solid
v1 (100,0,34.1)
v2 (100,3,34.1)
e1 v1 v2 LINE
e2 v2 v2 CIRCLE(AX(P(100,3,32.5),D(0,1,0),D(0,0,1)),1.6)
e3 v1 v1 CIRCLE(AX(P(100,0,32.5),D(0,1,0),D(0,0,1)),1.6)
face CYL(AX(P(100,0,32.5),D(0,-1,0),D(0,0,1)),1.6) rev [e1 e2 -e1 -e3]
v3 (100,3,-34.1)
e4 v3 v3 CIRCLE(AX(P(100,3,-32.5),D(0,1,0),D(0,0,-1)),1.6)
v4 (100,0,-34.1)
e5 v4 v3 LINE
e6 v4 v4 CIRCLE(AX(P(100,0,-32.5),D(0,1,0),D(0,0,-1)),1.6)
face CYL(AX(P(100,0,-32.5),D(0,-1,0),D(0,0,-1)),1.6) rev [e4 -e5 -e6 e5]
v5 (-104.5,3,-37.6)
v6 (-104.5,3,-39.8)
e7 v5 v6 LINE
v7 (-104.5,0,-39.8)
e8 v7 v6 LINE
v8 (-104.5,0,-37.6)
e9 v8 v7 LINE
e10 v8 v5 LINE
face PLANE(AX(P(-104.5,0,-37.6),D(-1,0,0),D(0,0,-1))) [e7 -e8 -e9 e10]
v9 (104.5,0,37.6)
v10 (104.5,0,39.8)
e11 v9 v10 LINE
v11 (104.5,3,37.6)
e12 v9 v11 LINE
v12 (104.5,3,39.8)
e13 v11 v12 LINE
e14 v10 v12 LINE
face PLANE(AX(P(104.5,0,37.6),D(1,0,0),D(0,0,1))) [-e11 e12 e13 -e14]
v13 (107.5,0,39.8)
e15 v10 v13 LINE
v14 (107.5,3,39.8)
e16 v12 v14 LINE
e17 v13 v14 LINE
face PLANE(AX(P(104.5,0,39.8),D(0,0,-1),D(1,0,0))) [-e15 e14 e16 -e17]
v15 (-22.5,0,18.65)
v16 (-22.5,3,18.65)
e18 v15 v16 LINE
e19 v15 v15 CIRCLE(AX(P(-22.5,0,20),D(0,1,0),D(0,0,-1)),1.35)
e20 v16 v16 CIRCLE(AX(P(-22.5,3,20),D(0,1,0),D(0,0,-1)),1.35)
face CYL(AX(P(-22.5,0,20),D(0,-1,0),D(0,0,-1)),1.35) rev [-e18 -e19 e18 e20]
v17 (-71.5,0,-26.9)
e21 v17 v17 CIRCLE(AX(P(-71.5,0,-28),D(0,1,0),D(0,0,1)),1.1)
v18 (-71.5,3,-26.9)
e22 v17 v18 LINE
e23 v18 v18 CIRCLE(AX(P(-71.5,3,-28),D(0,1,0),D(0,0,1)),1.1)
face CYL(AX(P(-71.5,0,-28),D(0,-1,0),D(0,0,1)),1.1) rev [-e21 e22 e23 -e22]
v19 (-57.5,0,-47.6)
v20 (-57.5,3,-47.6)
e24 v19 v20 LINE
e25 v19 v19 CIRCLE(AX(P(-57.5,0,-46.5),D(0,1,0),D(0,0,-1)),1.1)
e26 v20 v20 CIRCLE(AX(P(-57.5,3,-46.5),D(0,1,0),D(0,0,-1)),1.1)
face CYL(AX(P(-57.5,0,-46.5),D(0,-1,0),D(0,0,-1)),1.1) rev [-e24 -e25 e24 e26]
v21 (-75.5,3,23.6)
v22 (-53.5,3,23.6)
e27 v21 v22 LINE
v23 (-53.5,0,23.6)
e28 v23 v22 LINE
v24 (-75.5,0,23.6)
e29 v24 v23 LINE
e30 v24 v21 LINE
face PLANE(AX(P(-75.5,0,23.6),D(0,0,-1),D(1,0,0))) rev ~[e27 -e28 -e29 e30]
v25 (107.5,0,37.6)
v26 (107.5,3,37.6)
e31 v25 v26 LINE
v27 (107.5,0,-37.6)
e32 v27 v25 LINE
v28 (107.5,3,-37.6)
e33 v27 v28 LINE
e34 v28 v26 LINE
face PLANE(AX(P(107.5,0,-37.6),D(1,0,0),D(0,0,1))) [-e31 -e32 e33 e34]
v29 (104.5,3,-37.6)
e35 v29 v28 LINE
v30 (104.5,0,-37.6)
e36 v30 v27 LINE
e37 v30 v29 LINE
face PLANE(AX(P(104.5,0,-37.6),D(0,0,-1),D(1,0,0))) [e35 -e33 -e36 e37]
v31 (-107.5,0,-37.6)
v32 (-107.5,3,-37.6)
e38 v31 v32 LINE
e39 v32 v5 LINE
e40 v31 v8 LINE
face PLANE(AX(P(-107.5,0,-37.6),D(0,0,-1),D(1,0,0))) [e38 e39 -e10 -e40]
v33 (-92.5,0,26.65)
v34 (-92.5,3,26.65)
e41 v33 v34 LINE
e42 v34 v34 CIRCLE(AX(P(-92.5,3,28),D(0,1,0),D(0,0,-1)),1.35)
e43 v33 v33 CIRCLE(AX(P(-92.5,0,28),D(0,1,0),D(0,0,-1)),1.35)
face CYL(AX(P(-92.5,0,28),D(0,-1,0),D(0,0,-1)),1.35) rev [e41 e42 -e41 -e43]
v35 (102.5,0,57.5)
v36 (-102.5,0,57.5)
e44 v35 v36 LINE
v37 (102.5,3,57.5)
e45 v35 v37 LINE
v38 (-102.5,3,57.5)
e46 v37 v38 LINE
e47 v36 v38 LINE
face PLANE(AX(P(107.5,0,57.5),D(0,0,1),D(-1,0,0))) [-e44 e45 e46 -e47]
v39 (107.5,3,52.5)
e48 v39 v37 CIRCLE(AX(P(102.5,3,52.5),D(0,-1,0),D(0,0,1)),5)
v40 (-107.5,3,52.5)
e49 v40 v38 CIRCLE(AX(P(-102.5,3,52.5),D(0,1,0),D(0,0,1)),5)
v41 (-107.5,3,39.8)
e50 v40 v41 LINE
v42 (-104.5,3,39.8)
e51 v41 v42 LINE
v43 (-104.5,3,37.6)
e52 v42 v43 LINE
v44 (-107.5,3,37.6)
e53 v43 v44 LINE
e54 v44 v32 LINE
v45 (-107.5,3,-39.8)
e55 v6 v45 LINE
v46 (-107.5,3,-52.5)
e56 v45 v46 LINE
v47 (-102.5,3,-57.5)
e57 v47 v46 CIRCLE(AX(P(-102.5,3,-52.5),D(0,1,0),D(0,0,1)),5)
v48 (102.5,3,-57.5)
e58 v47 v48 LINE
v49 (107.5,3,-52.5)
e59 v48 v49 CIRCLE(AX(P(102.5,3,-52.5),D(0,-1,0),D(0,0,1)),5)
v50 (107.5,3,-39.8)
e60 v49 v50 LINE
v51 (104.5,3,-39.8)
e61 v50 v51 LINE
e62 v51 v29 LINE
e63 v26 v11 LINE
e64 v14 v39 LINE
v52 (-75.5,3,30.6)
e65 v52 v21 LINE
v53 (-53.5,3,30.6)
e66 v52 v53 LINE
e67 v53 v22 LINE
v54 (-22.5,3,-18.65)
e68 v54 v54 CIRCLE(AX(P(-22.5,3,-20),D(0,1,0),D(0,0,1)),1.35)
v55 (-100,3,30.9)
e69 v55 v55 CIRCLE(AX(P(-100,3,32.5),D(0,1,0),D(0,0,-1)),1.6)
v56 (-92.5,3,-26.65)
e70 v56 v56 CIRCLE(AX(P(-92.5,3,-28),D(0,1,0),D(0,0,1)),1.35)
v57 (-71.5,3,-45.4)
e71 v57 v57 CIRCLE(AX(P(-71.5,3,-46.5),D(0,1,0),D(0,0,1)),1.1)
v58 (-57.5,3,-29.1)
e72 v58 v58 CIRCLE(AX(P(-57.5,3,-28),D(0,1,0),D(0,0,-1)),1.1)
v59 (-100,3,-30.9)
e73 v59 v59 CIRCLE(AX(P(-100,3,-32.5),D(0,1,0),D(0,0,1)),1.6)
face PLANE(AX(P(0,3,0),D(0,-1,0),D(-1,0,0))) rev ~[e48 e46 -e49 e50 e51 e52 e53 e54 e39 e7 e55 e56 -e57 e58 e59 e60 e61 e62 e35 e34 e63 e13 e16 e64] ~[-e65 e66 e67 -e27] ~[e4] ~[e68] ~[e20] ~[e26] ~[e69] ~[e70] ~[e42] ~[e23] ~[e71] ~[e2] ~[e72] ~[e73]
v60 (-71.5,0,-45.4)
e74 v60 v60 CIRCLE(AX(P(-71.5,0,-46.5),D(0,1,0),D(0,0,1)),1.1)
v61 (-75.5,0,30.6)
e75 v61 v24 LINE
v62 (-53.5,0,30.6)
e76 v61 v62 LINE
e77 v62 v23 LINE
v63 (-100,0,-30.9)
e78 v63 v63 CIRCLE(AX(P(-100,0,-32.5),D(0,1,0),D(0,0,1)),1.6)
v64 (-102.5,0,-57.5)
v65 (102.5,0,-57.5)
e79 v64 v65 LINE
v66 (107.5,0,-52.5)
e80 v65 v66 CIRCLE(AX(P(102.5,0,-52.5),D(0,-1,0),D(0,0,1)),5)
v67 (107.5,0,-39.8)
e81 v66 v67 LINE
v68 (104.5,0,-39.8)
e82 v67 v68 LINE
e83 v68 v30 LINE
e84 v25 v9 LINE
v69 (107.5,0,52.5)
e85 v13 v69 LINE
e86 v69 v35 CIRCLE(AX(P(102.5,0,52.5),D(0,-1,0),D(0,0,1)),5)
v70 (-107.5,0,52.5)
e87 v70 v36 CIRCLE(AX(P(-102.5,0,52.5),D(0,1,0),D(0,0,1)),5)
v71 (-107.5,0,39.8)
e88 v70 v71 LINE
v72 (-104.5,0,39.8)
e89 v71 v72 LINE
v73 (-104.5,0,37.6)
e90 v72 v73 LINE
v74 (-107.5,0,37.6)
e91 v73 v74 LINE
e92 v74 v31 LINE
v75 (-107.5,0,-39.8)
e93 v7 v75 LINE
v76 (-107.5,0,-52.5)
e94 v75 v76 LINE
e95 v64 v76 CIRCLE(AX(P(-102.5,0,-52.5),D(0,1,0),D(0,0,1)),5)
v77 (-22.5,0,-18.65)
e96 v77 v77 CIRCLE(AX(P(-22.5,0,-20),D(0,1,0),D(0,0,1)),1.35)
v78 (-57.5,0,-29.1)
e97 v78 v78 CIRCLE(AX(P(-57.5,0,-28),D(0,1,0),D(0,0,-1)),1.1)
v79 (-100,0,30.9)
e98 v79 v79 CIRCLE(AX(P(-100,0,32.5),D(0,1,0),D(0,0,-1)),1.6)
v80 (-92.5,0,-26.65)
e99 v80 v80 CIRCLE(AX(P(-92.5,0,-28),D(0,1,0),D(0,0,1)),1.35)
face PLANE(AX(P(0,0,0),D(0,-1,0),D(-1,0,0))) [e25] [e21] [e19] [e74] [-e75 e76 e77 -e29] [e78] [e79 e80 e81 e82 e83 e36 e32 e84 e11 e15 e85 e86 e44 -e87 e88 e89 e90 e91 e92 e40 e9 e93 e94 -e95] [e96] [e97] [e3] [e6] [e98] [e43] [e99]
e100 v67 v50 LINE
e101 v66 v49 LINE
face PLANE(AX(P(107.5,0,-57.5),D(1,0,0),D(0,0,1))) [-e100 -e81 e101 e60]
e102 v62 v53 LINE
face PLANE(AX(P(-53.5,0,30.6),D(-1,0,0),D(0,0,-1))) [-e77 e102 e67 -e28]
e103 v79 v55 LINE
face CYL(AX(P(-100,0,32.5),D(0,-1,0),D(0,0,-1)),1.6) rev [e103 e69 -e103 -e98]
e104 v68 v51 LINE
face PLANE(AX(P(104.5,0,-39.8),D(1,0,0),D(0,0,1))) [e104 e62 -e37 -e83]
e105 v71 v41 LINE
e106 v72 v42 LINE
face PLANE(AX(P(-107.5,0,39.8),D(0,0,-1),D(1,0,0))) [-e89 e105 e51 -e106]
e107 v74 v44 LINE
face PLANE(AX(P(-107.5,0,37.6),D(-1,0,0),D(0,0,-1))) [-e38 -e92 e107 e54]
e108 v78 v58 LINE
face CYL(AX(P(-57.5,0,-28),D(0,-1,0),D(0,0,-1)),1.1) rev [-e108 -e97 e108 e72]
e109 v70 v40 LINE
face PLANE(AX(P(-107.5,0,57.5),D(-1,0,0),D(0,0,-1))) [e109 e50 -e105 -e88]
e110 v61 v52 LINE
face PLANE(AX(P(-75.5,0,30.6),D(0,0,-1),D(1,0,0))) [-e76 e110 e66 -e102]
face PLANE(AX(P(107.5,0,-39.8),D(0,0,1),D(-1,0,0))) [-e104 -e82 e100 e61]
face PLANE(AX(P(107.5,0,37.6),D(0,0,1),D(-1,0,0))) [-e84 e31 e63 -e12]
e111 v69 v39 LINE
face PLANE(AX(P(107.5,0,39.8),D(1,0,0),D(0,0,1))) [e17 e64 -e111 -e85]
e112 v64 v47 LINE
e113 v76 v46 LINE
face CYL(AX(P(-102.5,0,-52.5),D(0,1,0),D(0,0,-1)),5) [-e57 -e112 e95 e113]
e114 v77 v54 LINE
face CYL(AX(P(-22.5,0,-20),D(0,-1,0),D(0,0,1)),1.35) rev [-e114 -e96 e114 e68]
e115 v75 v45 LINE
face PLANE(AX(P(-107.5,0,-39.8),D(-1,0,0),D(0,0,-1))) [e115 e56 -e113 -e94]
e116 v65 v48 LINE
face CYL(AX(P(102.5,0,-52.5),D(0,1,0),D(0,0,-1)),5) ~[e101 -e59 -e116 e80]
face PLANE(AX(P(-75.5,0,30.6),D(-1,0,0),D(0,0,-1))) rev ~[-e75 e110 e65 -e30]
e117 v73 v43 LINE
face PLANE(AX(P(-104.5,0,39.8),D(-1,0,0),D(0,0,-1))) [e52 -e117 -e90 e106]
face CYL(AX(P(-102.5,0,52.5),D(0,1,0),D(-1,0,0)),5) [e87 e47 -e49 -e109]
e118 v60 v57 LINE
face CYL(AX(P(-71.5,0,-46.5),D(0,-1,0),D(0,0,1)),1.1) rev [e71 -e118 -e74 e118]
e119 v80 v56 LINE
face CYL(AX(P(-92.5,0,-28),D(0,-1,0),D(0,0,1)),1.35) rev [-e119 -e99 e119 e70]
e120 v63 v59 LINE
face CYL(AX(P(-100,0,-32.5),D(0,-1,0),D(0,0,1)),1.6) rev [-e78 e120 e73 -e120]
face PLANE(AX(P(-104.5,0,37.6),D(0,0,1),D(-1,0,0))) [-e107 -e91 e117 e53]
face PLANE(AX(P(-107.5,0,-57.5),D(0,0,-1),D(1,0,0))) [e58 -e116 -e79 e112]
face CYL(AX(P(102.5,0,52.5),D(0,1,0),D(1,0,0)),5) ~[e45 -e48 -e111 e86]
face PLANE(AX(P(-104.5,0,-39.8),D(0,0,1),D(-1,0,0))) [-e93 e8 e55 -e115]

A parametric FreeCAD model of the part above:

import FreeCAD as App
import Part
import Sketcher
Q = App.Units.Quantity


def edges_at(feature, points):
    """Names of the edges that pass closest to the given points."""
    edges = feature.Shape.Edges
    near = lambda p: min(range(len(edges)), key=lambda i: edges[i].distToShape(Part.Vertex(*p))[0])
    return sorted({f"Edge{near(p) + 1}" for p in points})

doc = App.newDocument("Part")
body = doc.addObject("PartDesign::Body", "Body")

sketch1 = doc.addObject("Sketcher::SketchObject", "Sketch")
body.addObject(sketch1)
sketch1.AttachmentSupport = (doc.XZ_Plane, [""])
sketch1.MapMode = "FlatFace"
sketch1.addGeometry(Part.LineSegment(App.Vector(107.5, -57.5, 0), App.Vector(-107.5, -57.5, 0)), False)
sketch1.addGeometry(Part.LineSegment(App.Vector(-107.5, -57.5, 0), App.Vector(-107.5, -39.8, 0)), False)
sketch1.addGeometry(Part.LineSegment(App.Vector(-107.5, -39.8, 0), App.Vector(-104.5, -39.8, 0)), False)
sketch1.addGeometry(Part.LineSegment(App.Vector(-104.5, -39.8, 0), App.Vector(-104.5, -37.6, 0)), False)
sketch1.addGeometry(Part.LineSegment(App.Vector(-104.5, -37.6, 0), App.Vector(-107.5, -37.6, 0)), False)
sketch1.addGeometry(Part.LineSegment(App.Vector(-107.5, -37.6, 0), App.Vector(-107.5, 37.6, 0)), False)
sketch1.addGeometry(Part.LineSegment(App.Vector(-107.5, 37.6, 0), App.Vector(-104.5, 37.6, 0)), False)
sketch1.addGeometry(Part.LineSegment(App.Vector(-104.5, 37.6, 0), App.Vector(-104.5, 39.8, 0)), False)
sketch1.addGeometry(Part.LineSegment(App.Vector(-104.5, 39.8, 0), App.Vector(-107.5, 39.8, 0)), False)
sketch1.addGeometry(Part.LineSegment(App.Vector(-107.5, 39.8, 0), App.Vector(-107.5, 57.5, 0)), False)
sketch1.addGeometry(Part.LineSegment(App.Vector(-107.5, 57.5, 0), App.Vector(107.5, 57.5, 0)), False)
sketch1.addGeometry(Part.LineSegment(App.Vector(107.5, 57.5, 0), App.Vector(107.5, 39.8, 0)), False)
sketch1.addGeometry(Part.LineSegment(App.Vector(107.5, 39.8, 0), App.Vector(104.5, 39.8, 0)), False)
sketch1.addGeometry(Part.LineSegment(App.Vector(104.5, 39.8, 0), App.Vector(104.5, 37.6, 0)), False)
sketch1.addGeometry(Part.LineSegment(App.Vector(104.5, 37.6, 0), App.Vector(107.5, 37.6, 0)), False)
sketch1.addGeometry(Part.LineSegment(App.Vector(107.5, 37.6, 0), App.Vector(107.5, -37.6, 0)), False)
sketch1.addGeometry(Part.LineSegment(App.Vector(107.5, -37.6, 0), App.Vector(104.5, -37.6, 0)), False)
sketch1.addGeometry(Part.LineSegment(App.Vector(104.5, -37.6, 0), App.Vector(104.5, -39.8, 0)), False)
sketch1.addGeometry(Part.LineSegment(App.Vector(104.5, -39.8, 0), App.Vector(107.5, -39.8, 0)), False)
sketch1.addGeometry(Part.LineSegment(App.Vector(107.5, -39.8, 0), App.Vector(107.5, -57.5, 0)), False)
sketch1.addGeometry(Part.Circle(App.Vector(100, 32.5, 0), App.Vector(0, 0, 1), 1.6), False)
sketch1.addGeometry(Part.Circle(App.Vector(-22.5, 20, 0), App.Vector(0, 0, 1), 1.4), False)
sketch1.addGeometry(Part.LineSegment(App.Vector(-75.5, 30.6, 0), App.Vector(-75.5, 23.6, 0)), False)
sketch1.addGeometry(Part.LineSegment(App.Vector(-75.5, 23.6, 0), App.Vector(-53.5, 23.6, 0)), False)
sketch1.addGeometry(Part.LineSegment(App.Vector(-53.5, 23.6, 0), App.Vector(-53.5, 30.6, 0)), False)
sketch1.addGeometry(Part.LineSegment(App.Vector(-53.5, 30.6, 0), App.Vector(-75.5, 30.6, 0)), False)
sketch1.addGeometry(Part.Circle(App.Vector(-100, 32.5, 0), App.Vector(0, 0, 1), 1.6), False)
sketch1.addGeometry(Part.Circle(App.Vector(-92.5, 28, 0), App.Vector(0, 0, 1), 1.4), False)
sketch1.addGeometry(Part.Circle(App.Vector(100, -32.5, 0), App.Vector(0, 0, 1), 1.6), False)
sketch1.addGeometry(Part.Circle(App.Vector(-22.5, -20, 0), App.Vector(0, 0, 1), 1.4), False)
sketch1.addGeometry(Part.Circle(App.Vector(-57.5, -28, 0), App.Vector(0, 0, 1), 1.1), False)
sketch1.addGeometry(Part.Circle(App.Vector(-71.5, -28, 0), App.Vector(0, 0, 1), 1.1), False)
sketch1.addGeometry(Part.Circle(App.Vector(-92.5, -28, 0), App.Vector(0, 0, 1), 1.4), False)
sketch1.addGeometry(Part.Circle(App.Vector(-100, -32.5, 0), App.Vector(0, 0, 1), 1.6), False)
sketch1.addGeometry(Part.Circle(App.Vector(-57.5, -46.5, 0), App.Vector(0, 0, 1), 1.1), False)
sketch1.addGeometry(Part.Circle(App.Vector(-71.5, -46.5, 0), App.Vector(0, 0, 1), 1.1), False)
sketch1.addConstraint(Sketcher.Constraint("Coincident", 0, 2, 1, 1))
sketch1.addConstraint(Sketcher.Constraint("Coincident", 1, 2, 2, 1))
sketch1.addConstraint(Sketcher.Constraint("Coincident", 2, 2, 3, 1))
sketch1.addConstraint(Sketcher.Constraint("Coincident", 3, 2, 4, 1))
sketch1.addConstraint(Sketcher.Constraint("Coincident", 4, 2, 5, 1))
sketch1.addConstraint(Sketcher.Constraint("Coincident", 5, 2, 6, 1))
sketch1.addConstraint(Sketcher.Constraint("Coincident", 6, 2, 7, 1))
sketch1.addConstraint(Sketcher.Constraint("Coincident", 7, 2, 8, 1))
sketch1.addConstraint(Sketcher.Constraint("Coincident", 8, 2, 9, 1))
sketch1.addConstraint(Sketcher.Constraint("Coincident", 9, 2, 10, 1))
sketch1.addConstraint(Sketcher.Constraint("Coincident", 10, 2, 11, 1))
sketch1.addConstraint(Sketcher.Constraint("Coincident", 11, 2, 12, 1))
sketch1.addConstraint(Sketcher.Constraint("Coincident", 12, 2, 13, 1))
sketch1.addConstraint(Sketcher.Constraint("Coincident", 13, 2, 14, 1))
sketch1.addConstraint(Sketcher.Constraint("Coincident", 14, 2, 15, 1))
sketch1.addConstraint(Sketcher.Constraint("Coincident", 15, 2, 16, 1))
sketch1.addConstraint(Sketcher.Constraint("Coincident", 16, 2, 17, 1))
sketch1.addConstraint(Sketcher.Constraint("Coincident", 17, 2, 18, 1))
sketch1.addConstraint(Sketcher.Constraint("Coincident", 18, 2, 19, 1))
sketch1.addConstraint(Sketcher.Constraint("Coincident", 19, 2, 0, 1))
sketch1.addConstraint(Sketcher.Constraint("Coincident", 22, 2, 23, 1))
sketch1.addConstraint(Sketcher.Constraint("Coincident", 23, 2, 24, 1))
sketch1.addConstraint(Sketcher.Constraint("Coincident", 24, 2, 25, 1))
sketch1.addConstraint(Sketcher.Constraint("Coincident", 25, 2, 22, 1))
sketch1.addConstraint(Sketcher.Constraint("Horizontal", 0))
sketch1.addConstraint(Sketcher.Constraint("Vertical", 1))
sketch1.addConstraint(Sketcher.Constraint("Horizontal", 2))
sketch1.addConstraint(Sketcher.Constraint("Vertical", 3))
sketch1.addConstraint(Sketcher.Constraint("Horizontal", 4))
sketch1.addConstraint(Sketcher.Constraint("Vertical", 5))
sketch1.addConstraint(Sketcher.Constraint("Horizontal", 6))
sketch1.addConstraint(Sketcher.Constraint("Vertical", 7))
sketch1.addConstraint(Sketcher.Constraint("Horizontal", 8))
sketch1.addConstraint(Sketcher.Constraint("Vertical", 9))
sketch1.addConstraint(Sketcher.Constraint("Horizontal", 10))
sketch1.addConstraint(Sketcher.Constraint("Vertical", 11))
sketch1.addConstraint(Sketcher.Constraint("Horizontal", 12))
sketch1.addConstraint(Sketcher.Constraint("Vertical", 13))
sketch1.addConstraint(Sketcher.Constraint("Horizontal", 14))
sketch1.addConstraint(Sketcher.Constraint("Vertical", 15))
sketch1.addConstraint(Sketcher.Constraint("Horizontal", 16))
sketch1.addConstraint(Sketcher.Constraint("Vertical", 17))
sketch1.addConstraint(Sketcher.Constraint("Horizontal", 18))
sketch1.addConstraint(Sketcher.Constraint("Vertical", 19))
sketch1.addConstraint(Sketcher.Constraint("Vertical", 22))
sketch1.addConstraint(Sketcher.Constraint("Horizontal", 23))
sketch1.addConstraint(Sketcher.Constraint("Vertical", 24))
sketch1.addConstraint(Sketcher.Constraint("Horizontal", 25))
sketch1.addConstraint(Sketcher.Constraint("Equal", 20, 26))
sketch1.addConstraint(Sketcher.Constraint("Equal", 21, 27))
sketch1.addConstraint(Sketcher.Constraint("Equal", 26, 28))
sketch1.addConstraint(Sketcher.Constraint("Equal", 27, 29))
sketch1.addConstraint(Sketcher.Constraint("Equal", 30, 31))
sketch1.addConstraint(Sketcher.Constraint("Equal", 29, 32))
sketch1.addConstraint(Sketcher.Constraint("Equal", 28, 33))
sketch1.addConstraint(Sketcher.Constraint("Equal", 31, 34))
sketch1.addConstraint(Sketcher.Constraint("Equal", 34, 35))
sketch1.addConstraint(Sketcher.Constraint("Symmetric", 26, 3, 28, 3, -1, 1))
sketch1.addConstraint(Sketcher.Constraint("Symmetric", 20, 3, 33, 3, -1, 1))
sketch1.addConstraint(Sketcher.Constraint("Symmetric", 0, 2, 10, 2, -1, 1))
sketch1.addConstraint(Sketcher.Constraint("Symmetric", 2, 2, 12, 2, -1, 1))
sketch1.addConstraint(Sketcher.Constraint("Symmetric", 4, 2, 14, 2, -1, 1))
sketch1.addConstraint(Sketcher.Constraint("Symmetric", 6, 2, 16, 2, -1, 1))
sketch1.addConstraint(Sketcher.Constraint("Symmetric", 8, 2, 18, 2, -1, 1))
sketch1.addConstraint(Sketcher.Constraint("Symmetric", 20, 3, 26, 3, -2))
sketch1.addConstraint(Sketcher.Constraint("Symmetric", 8, 2, 11, 2, -2))
sketch1.addConstraint(Sketcher.Constraint("Symmetric", 6, 2, 13, 2, -2))
sketch1.addConstraint(Sketcher.Constraint("Symmetric", 21, 3, 29, 3, -1))
sketch1.addConstraint(Sketcher.Constraint("Symmetric", 27, 3, 32, 3, -1))
sketch1.addConstraint(Sketcher.Constraint("Horizontal", 30, 3, 31, 3))
sketch1.addConstraint(Sketcher.Constraint("Horizontal", 31, 3, 32, 3))
sketch1.addConstraint(Sketcher.Constraint("Horizontal", 34, 3, 35, 3))
sketch1.addConstraint(Sketcher.Constraint("Vertical", 30, 3, 34, 3))
sketch1.addConstraint(Sketcher.Constraint("Vertical", 31, 3, 35, 3))
sketch1.addConstraint(Sketcher.Constraint("Vertical", 1, 2, 4, 2))
sketch1.addConstraint(Sketcher.Constraint("Diameter", 20, Q("3.2 mm")))
sketch1.addConstraint(Sketcher.Constraint("Diameter", 21, Q("2.7 mm")))
sketch1.addConstraint(Sketcher.Constraint("Diameter", 30, Q("2.2 mm")))
sketch1.addConstraint(Sketcher.Constraint("DistanceX", 0, 2, 0, 1, Q("215 mm")))
sketch1.addConstraint(Sketcher.Constraint("DistanceX", 2, 1, 2, 2, Q("3 mm")))
sketch1.addConstraint(Sketcher.Constraint("DistanceX", 23, 1, 23, 2, Q("22 mm")))
sketch1.addConstraint(Sketcher.Constraint("DistanceY", 22, 2, 22, 1, Q("7 mm")))
sketch1.addConstraint(Sketcher.Constraint("DistanceY", 1, 1, 1, 2, Q("17.7 mm")))
sketch1.addConstraint(Sketcher.Constraint("DistanceY", 3, 1, 3, 2, Q("2.2 mm")))
sketch1.addConstraint(Sketcher.Constraint("DistanceY", 5, 1, 5, 2, Q("75.2 mm")))
sketch1.addConstraint(Sketcher.Constraint("DistanceX", -1, 1, 20, 3, Q("100 mm")))
sketch1.addConstraint(Sketcher.Constraint("DistanceY", -1, 1, 21, 3, Q("20 mm")))
sketch1.addConstraint(Sketcher.Constraint("DistanceY", -1, 1, 27, 3, Q("28 mm")))
sketch1.addConstraint(Sketcher.Constraint("DistanceX", 27, 3, 21, 3, Q("70 mm")))
sketch1.addConstraint(Sketcher.Constraint("DistanceY", 28, 3, 20, 3, Q("65 mm")))
sketch1.addConstraint(Sketcher.Constraint("DistanceX", 30, 3, 29, 3, Q("35 mm")))
sketch1.addConstraint(Sketcher.Constraint("DistanceX", 31, 3, 30, 3, Q("14 mm")))
sketch1.addConstraint(Sketcher.Constraint("DistanceY", 34, 3, 33, 3, Q("14 mm")))
sketch1.addConstraint(Sketcher.Constraint("DistanceX", 0, 2, 32, 3, Q("15 mm")))
sketch1.addConstraint(Sketcher.Constraint("DistanceX", 27, 3, 22, 2, Q("17 mm")))
sketch1.addConstraint(Sketcher.Constraint("DistanceY", 22, 2, 6, 2, Q("14 mm")))
pad1 = doc.addObject("PartDesign::Pad", "Pad")
body.addObject(pad1)
pad1.Profile = sketch1
pad1.Length = 3
pad1.Reversed = True
doc.recompute()

fillet = doc.addObject("PartDesign::Fillet", "Fillet")
body.addObject(fillet)
fillet.Base = (pad1, edges_at(pad1, [
    (107.5, 1.5, 57.5),
    (-107.5, 1.5, 57.5),
    (-107.5, 1.5, -57.5),
    (107.5, 1.5, -57.5),
]))
fillet.Radius = 5

doc.recompute()
